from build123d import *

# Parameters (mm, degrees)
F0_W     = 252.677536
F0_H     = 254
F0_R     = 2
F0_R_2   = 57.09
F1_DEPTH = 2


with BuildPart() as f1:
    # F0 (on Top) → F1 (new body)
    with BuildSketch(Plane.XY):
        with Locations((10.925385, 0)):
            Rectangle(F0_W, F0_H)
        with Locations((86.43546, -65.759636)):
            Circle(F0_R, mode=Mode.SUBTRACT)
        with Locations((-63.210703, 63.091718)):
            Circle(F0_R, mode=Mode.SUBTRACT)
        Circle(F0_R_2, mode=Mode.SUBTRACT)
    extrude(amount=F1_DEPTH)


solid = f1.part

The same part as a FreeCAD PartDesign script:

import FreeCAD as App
import Part
import Sketcher
Q = App.Units.Quantity

doc = App.newDocument("Part")
body = doc.addObject("PartDesign::Body", "Body")

# Sketch on XY plane
sketch1 = body.newObject("Sketcher::SketchObject", "Sketch")
sketch1.AttachmentSupport = (doc.getObject("XY_Plane"), [""])
sketch1.MapMode = "FlatFace"
sketch1.addGeometry([
    Part.LineSegment(App.Vector(-115.4, 127, 0), App.Vector(-115.4, -127, 0)),  # 0
    Part.LineSegment(App.Vector(-115.4, -127, 0), App.Vector(137.3, -127, 0)),  # 1
    Part.LineSegment(App.Vector(137.3, -127, 0), App.Vector(137.3, 127, 0)),  # 2
    Part.LineSegment(App.Vector(137.3, 127, 0), App.Vector(-115.4, 127, 0)),  # 3
    Part.Circle(App.Vector(86.4, -65.8, 0), App.Vector(0, 0, 1), 2),  # 4
    Part.Circle(App.Vector(0, 0, 0), App.Vector(0, 0, 1), 57.1),  # 5
    Part.Circle(App.Vector(-63.2, 63.1, 0), App.Vector(0, 0, 1), 2),  # 6
], False)
sketch1.addConstraint([
    Sketcher.Constraint("Coincident", 0, 2, 1, 1),
    Sketcher.Constraint("Coincident", 1, 2, 2, 1),
    Sketcher.Constraint("Coincident", 2, 2, 3, 1),
    Sketcher.Constraint("Coincident", 3, 2, 0, 1),
    Sketcher.Constraint("Vertical", 0),
    Sketcher.Constraint("Horizontal", 1),
    Sketcher.Constraint("Vertical", 2),
    Sketcher.Constraint("Horizontal", 3),
    Sketcher.Constraint("Coincident", 5, 3, -1, 1),
    Sketcher.Constraint("Equal", 4, 6),
    Sketcher.Constraint("Diameter", 4, Q("4 mm")),
    Sketcher.Constraint("Diameter", 5, Q("114.18 mm")),
    Sketcher.Constraint("DistanceY", 0, 2, 0, 1, Q("254 mm")),
    Sketcher.Constraint("DistanceY", 0, 2, -1, 1, Q("127 mm")),
    Sketcher.Constraint("DistanceX", 1, 1, 1, 2, Q("252.677536 mm")),
    Sketcher.Constraint("DistanceX", -1, 1, 4, 3, Q("86.43546 mm")),
    Sketcher.Constraint("DistanceX", 0, 2, 6, 3, Q("52.20268 mm")),
    Sketcher.Constraint("DistanceY", 0, 2, 6, 3, Q("190.091718 mm")),
    Sketcher.Constraint("DistanceY", 4, 3, -1, 1, Q("65.759636 mm")),
    Sketcher.Constraint("DistanceX", 6, 3, -1, 1, Q("63.210703 mm")),
])
pad1 = body.newObject("PartDesign::Pad", "Pad")
pad1.Profile = sketch1
pad1.Length = 2

doc.recompute()
